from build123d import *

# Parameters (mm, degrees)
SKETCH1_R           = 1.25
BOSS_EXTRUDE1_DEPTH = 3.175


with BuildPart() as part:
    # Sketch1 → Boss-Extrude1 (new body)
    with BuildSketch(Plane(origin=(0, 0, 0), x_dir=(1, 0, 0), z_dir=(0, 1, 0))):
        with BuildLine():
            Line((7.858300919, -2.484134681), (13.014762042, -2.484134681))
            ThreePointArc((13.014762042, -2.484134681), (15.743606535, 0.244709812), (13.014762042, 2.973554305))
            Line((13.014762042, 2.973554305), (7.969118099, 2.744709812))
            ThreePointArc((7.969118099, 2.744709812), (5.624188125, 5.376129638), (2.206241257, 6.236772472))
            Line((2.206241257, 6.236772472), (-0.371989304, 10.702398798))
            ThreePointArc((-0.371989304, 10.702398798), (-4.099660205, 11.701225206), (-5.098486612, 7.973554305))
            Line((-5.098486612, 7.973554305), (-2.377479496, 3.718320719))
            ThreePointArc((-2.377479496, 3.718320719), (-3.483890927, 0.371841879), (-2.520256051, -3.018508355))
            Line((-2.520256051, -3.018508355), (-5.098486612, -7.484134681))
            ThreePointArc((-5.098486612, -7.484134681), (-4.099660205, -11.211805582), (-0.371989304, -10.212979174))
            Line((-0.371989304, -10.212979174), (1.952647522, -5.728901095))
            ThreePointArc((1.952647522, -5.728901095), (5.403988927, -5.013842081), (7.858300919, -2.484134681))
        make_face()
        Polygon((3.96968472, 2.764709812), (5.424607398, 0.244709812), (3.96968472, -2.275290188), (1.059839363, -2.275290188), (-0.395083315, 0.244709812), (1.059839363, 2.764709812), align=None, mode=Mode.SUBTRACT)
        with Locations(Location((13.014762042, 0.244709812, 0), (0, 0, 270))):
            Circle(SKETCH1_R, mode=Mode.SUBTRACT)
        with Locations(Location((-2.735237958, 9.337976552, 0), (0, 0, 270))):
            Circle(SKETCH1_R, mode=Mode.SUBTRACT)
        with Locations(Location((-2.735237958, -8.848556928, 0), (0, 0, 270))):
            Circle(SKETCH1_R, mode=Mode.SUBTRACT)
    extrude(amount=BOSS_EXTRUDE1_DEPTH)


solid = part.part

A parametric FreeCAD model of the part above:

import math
import FreeCAD as App
import Part
import Sketcher

V = App.Vector
Q = App.Units.Quantity


def add_polygon(sketch, points):
    """Adds a closed chain of lines whose ends are joined by coincident constraints."""
    first, n = sketch.GeometryCount, len(points)
    for a, b in zip(points, points[1:] + points[:1]):
        sketch.addGeometry(Part.LineSegment(App.Vector(*a, 0), App.Vector(*b, 0)), False)
    for i in range(n):
        sketch.addConstraint(Sketcher.Constraint("Coincident", first + i, 2, first + (i + 1) % n, 1))

doc = App.newDocument("Part")
body = doc.addObject("PartDesign::Body", "Body")

# Sketch on XZ plane
sketch1 = doc.addObject("Sketcher::SketchObject", "Sketch")
body.addObject(sketch1)
sketch1.AttachmentSupport = (doc.XZ_Plane, [""])
sketch1.MapMode = "FlatFace"
sketch1.addGeometry(Part.LineSegment(V(7.9, 2.5, 0), V(13, 2.5, 0)), False)  # 0
sketch1.addGeometry(Part.ArcOfCircle(Part.Circle(V(13, -0.2, 0), V(0, 0, 1), 2.7), math.radians(-90), math.radians(90)), False)  # 1
sketch1.addGeometry(Part.LineSegment(V(13, -3, 0), V(8, -2.7, 0)), False)  # 2
sketch1.addGeometry(Part.ArcOfCircle(Part.Circle(V(2.5, -0.2, 0), V(0, 0, 1), 6), math.radians(-93), math.radians(-25)), False)  # 3
sketch1.addGeometry(Part.LineSegment(V(2.2, -6.2, 0), V(-0.4, -10.7, 0)), False)  # 4
sketch1.addGeometry(Part.ArcOfCircle(Part.Circle(V(-2.7, -9.3, 0), V(0, 0, 1), 2.7), math.radians(150), math.radians(330)), False)  # 5
sketch1.addGeometry(Part.LineSegment(V(-5.1, -8, 0), V(-2.4, -3.7, 0)), False)  # 6
sketch1.addGeometry(Part.ArcOfCircle(Part.Circle(V(2.5, -0.2, 0), V(0, 0, 1), 6), math.radians(147), math.radians(215)), False)  # 7
sketch1.addGeometry(Part.LineSegment(V(-2.5, 3, 0), V(-5.1, 7.5, 0)), False)  # 8
sketch1.addGeometry(Part.ArcOfCircle(Part.Circle(V(-2.7, 8.8, 0), V(0, 0, 1), 2.7), math.radians(30), math.radians(210)), False)  # 9
sketch1.addGeometry(Part.LineSegment(V(-0.4, 10.2, 0), V(2, 5.7, 0)), False)  # 10
sketch1.addGeometry(Part.ArcOfCircle(Part.Circle(V(2.5, -0.2, 0), V(0, 0, 1), 6), math.radians(27), math.radians(95)), False)  # 11
sketch1.addGeometry(Part.Circle(V(-2.7, 8.8, 0), V(0, 0, 1), 1.2), False)  # 12
add_polygon(sketch1, [(1.1, -2.8), (4, -2.8), (5.4, -0.2), (4, 2.3), (1.1, 2.3), (-0.4, -0.2)])  # lines 13-18
sketch1.addGeometry(Part.Circle(V(-2.7, -9.3, 0), V(0, 0, 1), 1.2), False)  # 19
sketch1.addGeometry(Part.Circle(V(13, -0.2, 0), V(0, 0, 1), 1.2), False)  # 20
sketch1.addConstraint([
    Sketcher.Constraint("Tangent", 0, 2, 1, 2),
    Sketcher.Constraint("Coincident", 1, 1, 2, 1),
    Sketcher.Constraint("Coincident", 2, 2, 3, 2),
    Sketcher.Constraint("Coincident", 3, 1, 4, 1),
    Sketcher.Constraint("Tangent", 4, 2, 5, 2),
    Sketcher.Constraint("Coincident", 5, 1, 6, 1),
    Sketcher.Constraint("Coincident", 6, 2, 7, 2),
    Sketcher.Constraint("Coincident", 7, 1, 8, 1),
    Sketcher.Constraint("Tangent", 8, 2, 9, 2),
    Sketcher.Constraint("Coincident", 9, 1, 10, 1),
    Sketcher.Constraint("Coincident", 10, 2, 11, 2),
    Sketcher.Constraint("Coincident", 11, 1, 0, 1),
    Sketcher.Constraint("Horizontal", 0),
    Sketcher.Constraint("Horizontal", 13),
    Sketcher.Constraint("Horizontal", 16),
    Sketcher.Constraint("Coincident", 7, 3, 3, 3),
    Sketcher.Constraint("Coincident", 11, 3, 3, 3),
    Sketcher.Constraint("Coincident", 12, 3, 9, 3),
    Sketcher.Constraint("Coincident", 19, 3, 5, 3),
    Sketcher.Constraint("Coincident", 20, 3, 1, 3),
    Sketcher.Constraint("Equal", 1, 5),
    Sketcher.Constraint("Equal", 3, 7),
    Sketcher.Constraint("Equal", 5, 9),
    Sketcher.Constraint("Equal", 7, 11),
    Sketcher.Constraint("Equal", 12, 19),
    Sketcher.Constraint("Equal", 19, 20),
    Sketcher.Constraint("Parallel", 4, 14),
    Sketcher.Constraint("Parallel", 8, 15),
    Sketcher.Constraint("Parallel", 14, 17),
    Sketcher.Constraint("Parallel", 15, 18),
    Sketcher.Constraint("Horizontal", 1, 3, 3, 3),
    Sketcher.Constraint("Horizontal", 20, 3, 14, 2),
    Sketcher.Constraint("Horizontal", 14, 2, 17, 2),
    Sketcher.Constraint("Vertical", 5, 3, 9, 3),
    Sketcher.Constraint("Vertical", 0, 2, 1, 1),
    Sketcher.Constraint("Vertical", 5, 1, 8, 2),
    Sketcher.Constraint("Vertical", 4, 2, 9, 1),
    Sketcher.Constraint("Vertical", 13, 2, 15, 2),
    Sketcher.Constraint("Vertical", 16, 2, 18, 2),
    Sketcher.Constraint("Equal", 2, 6),
    Sketcher.Constraint("Equal", 4, 8),
    Sketcher.Constraint("Equal", 6, 10),
    Sketcher.Constraint("Radius", 3, Q("6 mm")),
    Sketcher.Constraint("Diameter", 12, Q("2.5 mm")),
    Sketcher.Constraint("Angle", 4, Q("-120 deg")),
    Sketcher.Constraint("DistanceX", 3, 3, 1, 3, Q("10.5 mm")),
    Sketcher.Constraint("DistanceY", 2, 2, 1, 3, Q("2.5 mm")),
    Sketcher.Constraint("DistanceX", 5, 3, 3, 3, Q("5.25 mm")),
    Sketcher.Constraint("DistanceY", 13, 2, 3, 3, Q("2.52 mm")),
    Sketcher.Constraint("Radius", 1, Q("2.728844 mm")),
    Sketcher.Constraint("DistanceY", 4, 2, -1, 1, Q("10.702399 mm")),
    Sketcher.Constraint("DistanceY", -1, 1, 10, 2, Q("5.728901 mm")),
    Sketcher.Constraint("DistanceX", -1, 1, 11, 1, Q("7.858301 mm")),
    Sketcher.Constraint("DistanceX", 13, 1, 13, 2, Q("2.909845 mm")),
    Sketcher.Constraint("DistanceX", -1, 1, 16, 2, Q("1.059839 mm")),
])
pad1 = doc.addObject("PartDesign::Pad", "Pad")
body.addObject(pad1)
pad1.Profile = sketch1
pad1.Length = 3.175
pad1.Reversed = True

doc.recompute()
